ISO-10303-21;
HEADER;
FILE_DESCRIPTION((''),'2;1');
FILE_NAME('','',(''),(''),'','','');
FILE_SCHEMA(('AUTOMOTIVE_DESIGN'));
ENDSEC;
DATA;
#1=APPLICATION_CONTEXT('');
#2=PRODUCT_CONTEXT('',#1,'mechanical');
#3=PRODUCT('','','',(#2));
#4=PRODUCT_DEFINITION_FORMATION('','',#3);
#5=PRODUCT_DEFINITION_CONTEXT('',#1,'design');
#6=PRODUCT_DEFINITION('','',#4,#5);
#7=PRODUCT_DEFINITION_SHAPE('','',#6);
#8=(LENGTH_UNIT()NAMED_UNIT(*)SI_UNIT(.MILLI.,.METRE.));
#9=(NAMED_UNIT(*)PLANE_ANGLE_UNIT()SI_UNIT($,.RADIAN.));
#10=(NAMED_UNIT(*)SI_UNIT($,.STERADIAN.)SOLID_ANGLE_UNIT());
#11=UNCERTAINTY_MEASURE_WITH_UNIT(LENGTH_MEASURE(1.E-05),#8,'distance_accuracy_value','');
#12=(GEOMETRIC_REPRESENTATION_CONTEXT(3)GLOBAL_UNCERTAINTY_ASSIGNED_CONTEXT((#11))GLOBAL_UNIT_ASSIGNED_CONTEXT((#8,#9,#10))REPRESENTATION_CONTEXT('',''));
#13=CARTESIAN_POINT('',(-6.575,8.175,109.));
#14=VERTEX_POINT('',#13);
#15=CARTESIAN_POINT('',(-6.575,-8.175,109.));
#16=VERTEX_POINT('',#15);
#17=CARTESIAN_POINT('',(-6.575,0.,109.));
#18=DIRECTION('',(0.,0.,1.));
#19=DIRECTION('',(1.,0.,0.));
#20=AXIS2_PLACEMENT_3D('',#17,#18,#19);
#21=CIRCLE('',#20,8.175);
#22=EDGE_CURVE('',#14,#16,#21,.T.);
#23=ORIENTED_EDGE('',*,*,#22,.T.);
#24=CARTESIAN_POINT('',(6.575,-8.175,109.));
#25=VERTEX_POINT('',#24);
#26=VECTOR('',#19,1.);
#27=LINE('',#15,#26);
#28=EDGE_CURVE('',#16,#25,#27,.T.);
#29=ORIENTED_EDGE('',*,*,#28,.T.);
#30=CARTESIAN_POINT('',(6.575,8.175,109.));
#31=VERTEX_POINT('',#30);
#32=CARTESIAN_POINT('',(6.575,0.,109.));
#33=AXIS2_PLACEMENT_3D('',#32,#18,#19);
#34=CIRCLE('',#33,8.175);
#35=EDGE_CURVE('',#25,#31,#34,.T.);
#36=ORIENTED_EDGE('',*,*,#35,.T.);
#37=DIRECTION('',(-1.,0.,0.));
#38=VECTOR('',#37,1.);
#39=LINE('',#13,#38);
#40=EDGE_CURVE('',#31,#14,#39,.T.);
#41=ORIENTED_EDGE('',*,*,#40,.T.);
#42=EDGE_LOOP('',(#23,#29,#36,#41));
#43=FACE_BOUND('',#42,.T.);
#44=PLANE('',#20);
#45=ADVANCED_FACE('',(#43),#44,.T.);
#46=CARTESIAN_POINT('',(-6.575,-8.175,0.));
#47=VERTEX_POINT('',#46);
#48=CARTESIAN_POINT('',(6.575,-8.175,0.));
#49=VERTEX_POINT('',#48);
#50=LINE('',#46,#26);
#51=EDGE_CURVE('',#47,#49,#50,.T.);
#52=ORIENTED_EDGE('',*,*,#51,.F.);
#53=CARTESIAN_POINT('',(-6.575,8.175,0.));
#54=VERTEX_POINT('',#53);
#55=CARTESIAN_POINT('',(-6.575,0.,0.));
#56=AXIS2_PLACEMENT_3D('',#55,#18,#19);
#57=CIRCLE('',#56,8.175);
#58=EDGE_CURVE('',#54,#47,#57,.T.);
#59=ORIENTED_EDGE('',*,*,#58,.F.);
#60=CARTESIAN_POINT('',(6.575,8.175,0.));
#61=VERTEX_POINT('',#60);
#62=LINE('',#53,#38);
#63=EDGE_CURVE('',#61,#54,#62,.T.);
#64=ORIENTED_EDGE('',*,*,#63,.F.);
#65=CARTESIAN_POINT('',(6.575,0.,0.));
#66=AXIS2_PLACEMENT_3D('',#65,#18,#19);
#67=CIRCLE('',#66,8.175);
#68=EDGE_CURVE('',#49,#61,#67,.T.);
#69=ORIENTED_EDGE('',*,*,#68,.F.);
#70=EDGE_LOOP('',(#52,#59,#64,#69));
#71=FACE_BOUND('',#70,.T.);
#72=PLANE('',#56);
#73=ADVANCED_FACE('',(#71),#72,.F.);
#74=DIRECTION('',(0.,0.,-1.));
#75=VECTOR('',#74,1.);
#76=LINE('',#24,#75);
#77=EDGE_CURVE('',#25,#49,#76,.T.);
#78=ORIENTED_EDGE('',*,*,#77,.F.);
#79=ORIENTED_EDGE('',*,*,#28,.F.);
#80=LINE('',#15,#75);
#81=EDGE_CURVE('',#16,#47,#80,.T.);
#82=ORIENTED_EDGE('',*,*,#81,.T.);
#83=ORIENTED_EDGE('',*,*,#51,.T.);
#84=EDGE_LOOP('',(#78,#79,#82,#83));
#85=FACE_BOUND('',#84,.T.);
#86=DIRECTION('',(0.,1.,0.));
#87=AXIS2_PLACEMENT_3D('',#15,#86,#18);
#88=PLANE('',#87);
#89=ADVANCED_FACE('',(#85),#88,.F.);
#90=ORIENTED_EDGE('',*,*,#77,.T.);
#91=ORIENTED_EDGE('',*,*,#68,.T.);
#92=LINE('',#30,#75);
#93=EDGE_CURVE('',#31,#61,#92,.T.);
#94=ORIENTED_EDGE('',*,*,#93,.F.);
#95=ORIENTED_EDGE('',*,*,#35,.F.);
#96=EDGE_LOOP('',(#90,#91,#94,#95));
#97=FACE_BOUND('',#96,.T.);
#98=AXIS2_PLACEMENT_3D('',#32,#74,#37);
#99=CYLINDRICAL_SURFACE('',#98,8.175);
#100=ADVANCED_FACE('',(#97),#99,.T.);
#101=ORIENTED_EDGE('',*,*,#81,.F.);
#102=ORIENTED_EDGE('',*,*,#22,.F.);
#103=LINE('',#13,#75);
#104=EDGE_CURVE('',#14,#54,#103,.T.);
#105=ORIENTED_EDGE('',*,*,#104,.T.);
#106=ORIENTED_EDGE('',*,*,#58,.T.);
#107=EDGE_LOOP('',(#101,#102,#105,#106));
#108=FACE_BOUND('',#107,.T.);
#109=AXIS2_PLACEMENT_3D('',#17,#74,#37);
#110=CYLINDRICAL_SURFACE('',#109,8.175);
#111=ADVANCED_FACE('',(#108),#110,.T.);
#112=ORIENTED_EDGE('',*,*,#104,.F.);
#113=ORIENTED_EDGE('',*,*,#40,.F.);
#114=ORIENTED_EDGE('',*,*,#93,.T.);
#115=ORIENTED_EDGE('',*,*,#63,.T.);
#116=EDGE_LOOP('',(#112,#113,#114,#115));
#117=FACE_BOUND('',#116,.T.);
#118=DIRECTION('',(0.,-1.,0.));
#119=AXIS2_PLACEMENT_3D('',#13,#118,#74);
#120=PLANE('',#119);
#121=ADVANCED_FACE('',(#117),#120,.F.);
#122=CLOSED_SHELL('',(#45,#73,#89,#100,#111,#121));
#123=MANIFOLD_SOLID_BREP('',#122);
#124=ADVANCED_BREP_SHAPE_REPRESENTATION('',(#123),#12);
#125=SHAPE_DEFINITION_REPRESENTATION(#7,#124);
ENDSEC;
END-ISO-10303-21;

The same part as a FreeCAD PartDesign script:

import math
import FreeCAD as App
import Part
import Sketcher
from FreeCAD import Vector
Q = App.Units.Quantity

doc = App.newDocument("Part")
body = doc.addObject("PartDesign::Body", "Body")

# Sketch on XY plane
sketch1 = body.newObject("Sketcher::SketchObject", "Sketch")
sketch1.AttachmentSupport = (doc.getObject("XY_Plane"), [""])
sketch1.MapMode = "FlatFace"
sketch1.addGeometry(Part.LineSegment(Vector(7, 8, 0), Vector(-7, 8, 0)), False)
sketch1.addGeometry(Part.ArcOfCircle(Part.Circle(Vector(-7, 0, 0), Vector(0, 0, 1), 8), math.radians(90), math.radians(270)), False)
sketch1.addGeometry(Part.LineSegment(Vector(-7, -8, 0), Vector(7, -8, 0)), False)
sketch1.addGeometry(Part.ArcOfCircle(Part.Circle(Vector(7, 0, 0), Vector(0, 0, 1), 8), math.radians(-90), math.radians(90)), False)
sketch1.addConstraint(Sketcher.Constraint("Tangent", 0, 2, 1, 1))
sketch1.addConstraint(Sketcher.Constraint("Tangent", 1, 2, 2, 1))
sketch1.addConstraint(Sketcher.Constraint("Tangent", 2, 2, 3, 1))
sketch1.addConstraint(Sketcher.Constraint("Tangent", 3, 2, 0, 1))
sketch1.addConstraint(Sketcher.Constraint("Horizontal", 0))
sketch1.addConstraint(Sketcher.Constraint("Horizontal", 2))
sketch1.addConstraint(Sketcher.Constraint("Symmetric", 1, 3, 3, 3, -1, 1))
sketch1.addConstraint(Sketcher.Constraint("Radius", 1, Q("8.175 mm")))
sketch1.addConstraint(Sketcher.Constraint("DistanceX", 0, 2, 0, 1, Q("13.15 mm")))
pad1 = body.newObject("PartDesign::Pad", "Pad")
pad1.Profile = sketch1
pad1.Length = 109

doc.recompute()
